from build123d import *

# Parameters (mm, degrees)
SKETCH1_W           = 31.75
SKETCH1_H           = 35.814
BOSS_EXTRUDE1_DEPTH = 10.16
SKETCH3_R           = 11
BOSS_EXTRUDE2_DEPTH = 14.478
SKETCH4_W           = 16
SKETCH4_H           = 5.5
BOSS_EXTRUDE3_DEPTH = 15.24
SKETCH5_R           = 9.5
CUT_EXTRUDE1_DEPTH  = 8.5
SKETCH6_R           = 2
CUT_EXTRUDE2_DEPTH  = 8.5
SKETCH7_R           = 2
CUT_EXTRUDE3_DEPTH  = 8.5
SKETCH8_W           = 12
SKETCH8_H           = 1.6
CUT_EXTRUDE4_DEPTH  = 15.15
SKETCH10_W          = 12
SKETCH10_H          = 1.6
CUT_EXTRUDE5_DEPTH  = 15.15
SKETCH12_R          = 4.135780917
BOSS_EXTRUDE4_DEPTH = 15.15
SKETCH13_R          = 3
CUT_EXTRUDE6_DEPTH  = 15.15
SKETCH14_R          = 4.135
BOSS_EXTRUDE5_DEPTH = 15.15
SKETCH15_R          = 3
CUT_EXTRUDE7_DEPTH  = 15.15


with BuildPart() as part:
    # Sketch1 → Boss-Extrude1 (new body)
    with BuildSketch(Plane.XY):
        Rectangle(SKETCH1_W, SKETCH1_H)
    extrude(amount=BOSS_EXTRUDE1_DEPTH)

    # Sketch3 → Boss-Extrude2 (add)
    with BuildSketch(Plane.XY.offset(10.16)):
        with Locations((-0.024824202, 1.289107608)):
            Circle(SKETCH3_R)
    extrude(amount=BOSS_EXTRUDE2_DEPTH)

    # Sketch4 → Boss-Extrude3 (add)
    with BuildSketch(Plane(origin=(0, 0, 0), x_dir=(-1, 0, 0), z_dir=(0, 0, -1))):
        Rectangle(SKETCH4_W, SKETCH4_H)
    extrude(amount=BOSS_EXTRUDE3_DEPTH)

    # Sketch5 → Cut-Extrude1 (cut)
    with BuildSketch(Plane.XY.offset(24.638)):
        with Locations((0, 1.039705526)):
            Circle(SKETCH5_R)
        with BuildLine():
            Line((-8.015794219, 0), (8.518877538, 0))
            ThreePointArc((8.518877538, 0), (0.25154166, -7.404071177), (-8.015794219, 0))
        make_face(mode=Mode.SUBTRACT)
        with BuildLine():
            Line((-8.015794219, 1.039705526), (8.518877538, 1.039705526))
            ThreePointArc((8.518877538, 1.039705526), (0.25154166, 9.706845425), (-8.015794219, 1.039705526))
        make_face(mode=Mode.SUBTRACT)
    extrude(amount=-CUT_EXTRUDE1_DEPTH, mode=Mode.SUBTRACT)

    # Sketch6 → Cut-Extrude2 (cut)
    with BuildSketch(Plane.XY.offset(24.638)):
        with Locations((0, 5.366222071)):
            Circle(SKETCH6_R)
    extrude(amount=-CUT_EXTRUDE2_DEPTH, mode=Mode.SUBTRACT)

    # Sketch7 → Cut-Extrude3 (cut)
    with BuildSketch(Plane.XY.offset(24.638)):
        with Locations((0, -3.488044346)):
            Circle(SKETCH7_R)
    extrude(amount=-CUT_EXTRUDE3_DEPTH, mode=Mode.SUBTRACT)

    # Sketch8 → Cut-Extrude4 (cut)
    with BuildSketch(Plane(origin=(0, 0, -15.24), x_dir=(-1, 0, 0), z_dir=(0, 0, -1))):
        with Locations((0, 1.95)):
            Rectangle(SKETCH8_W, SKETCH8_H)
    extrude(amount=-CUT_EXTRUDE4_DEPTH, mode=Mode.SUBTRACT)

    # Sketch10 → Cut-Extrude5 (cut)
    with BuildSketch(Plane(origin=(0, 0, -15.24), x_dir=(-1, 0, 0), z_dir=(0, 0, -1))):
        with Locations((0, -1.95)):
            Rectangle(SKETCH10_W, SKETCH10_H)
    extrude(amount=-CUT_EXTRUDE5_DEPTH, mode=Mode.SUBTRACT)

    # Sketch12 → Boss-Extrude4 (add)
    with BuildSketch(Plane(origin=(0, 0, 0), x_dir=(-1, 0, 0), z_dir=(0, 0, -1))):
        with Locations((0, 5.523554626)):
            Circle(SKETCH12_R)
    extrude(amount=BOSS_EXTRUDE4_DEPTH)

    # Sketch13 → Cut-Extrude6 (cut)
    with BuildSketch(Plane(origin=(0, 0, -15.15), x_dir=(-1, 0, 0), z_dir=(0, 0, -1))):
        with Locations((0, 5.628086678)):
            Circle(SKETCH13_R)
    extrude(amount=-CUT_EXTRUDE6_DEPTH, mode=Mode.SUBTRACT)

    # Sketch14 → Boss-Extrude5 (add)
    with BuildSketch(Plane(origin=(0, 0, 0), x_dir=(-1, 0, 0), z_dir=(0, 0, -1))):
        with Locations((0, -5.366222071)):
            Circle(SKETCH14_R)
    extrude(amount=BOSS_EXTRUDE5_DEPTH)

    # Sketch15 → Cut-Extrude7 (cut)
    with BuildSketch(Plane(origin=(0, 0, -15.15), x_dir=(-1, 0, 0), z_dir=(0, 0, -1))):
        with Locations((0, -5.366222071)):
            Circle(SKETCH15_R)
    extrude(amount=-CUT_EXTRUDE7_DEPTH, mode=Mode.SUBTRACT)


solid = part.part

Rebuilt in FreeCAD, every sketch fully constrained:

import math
import FreeCAD as App
import Part
import Sketcher

doc = App.newDocument("Part")
body = doc.addObject("PartDesign::Body", "Body")

# Sketch on XY plane
sketch1 = doc.addObject("Sketcher::SketchObject", "Sketch")
body.addObject(sketch1)
sketch1.AttachmentSupport = (doc.XY_Plane, [""])
sketch1.MapMode = "FlatFace"
sketch1.addGeometry([
    Part.LineSegment(App.Vector(-16, 18, 0), App.Vector(-16, -18, 0)),
    Part.LineSegment(App.Vector(-16, -18, 0), App.Vector(16, -18, 0)),
    Part.LineSegment(App.Vector(16, -18, 0), App.Vector(16, 18, 0)),
    Part.LineSegment(App.Vector(16, 18, 0), App.Vector(-16, 18, 0)),
], False)
sketch1.addConstraint([
    Sketcher.Constraint("Coincident", 0, 2, 1, 1),
    Sketcher.Constraint("Coincident", 1, 2, 2, 1),
    Sketcher.Constraint("Coincident", 2, 2, 3, 1),
    Sketcher.Constraint("Coincident", 3, 2, 0, 1),
    Sketcher.Constraint("Vertical", 0),
    Sketcher.Constraint("Horizontal", 1),
    Sketcher.Constraint("Vertical", 2),
    Sketcher.Constraint("Horizontal", 3),
    Sketcher.Constraint("Symmetric", 0, 2, 2, 2, -1, 1),
    Sketcher.Constraint("DistanceX", 1, 1, 1, 2, 31.75),
    Sketcher.Constraint("DistanceY", 0, 2, 0, 1, 35.814),
])
pad1 = doc.addObject("PartDesign::Pad", "Pad")
body.addObject(pad1)
pad1.Profile = sketch1
pad1.Length = 10.16

# Sketch on XY plane
sketch2 = doc.addObject("Sketcher::SketchObject", "Sketch001")
body.addObject(sketch2)
sketch2.AttachmentSupport = (doc.XY_Plane, [""])
sketch2.MapMode = "FlatFace"
sketch2.AttachmentOffset = App.Placement(App.Vector(0, 0, 10.16), App.Rotation())
sketch2.addGeometry(Part.Circle(App.Vector(0, 1, 0), App.Vector(0, 0, 1), 11), False)
sketch2.addConstraint([
    Sketcher.Constraint("Diameter", 0, 22.0),
    Sketcher.Constraint("DistanceX", 0, 3, -1, 1, 0.024824),
    Sketcher.Constraint("DistanceY", -1, 1, 0, 3, 1.289108),
])
pad2 = doc.addObject("PartDesign::Pad", "Pad001")
body.addObject(pad2)
pad2.Profile = sketch2
pad2.Length = 14.478

# Sketch on XY plane
sketch3 = doc.addObject("Sketcher::SketchObject", "Sketch002")
body.addObject(sketch3)
sketch3.AttachmentSupport = (doc.XY_Plane, [""])
sketch3.MapMode = "FlatFace"
sketch3.addGeometry([
    Part.LineSegment(App.Vector(8, 3, 0), App.Vector(8, -3, 0)),
    Part.LineSegment(App.Vector(8, -3, 0), App.Vector(-8, -3, 0)),
    Part.LineSegment(App.Vector(-8, -3, 0), App.Vector(-8, 3, 0)),
    Part.LineSegment(App.Vector(-8, 3, 0), App.Vector(8, 3, 0)),
], False)
sketch3.addConstraint([
    Sketcher.Constraint("Coincident", 0, 2, 1, 1),
    Sketcher.Constraint("Coincident", 1, 2, 2, 1),
    Sketcher.Constraint("Coincident", 2, 2, 3, 1),
    Sketcher.Constraint("Coincident", 3, 2, 0, 1),
    Sketcher.Constraint("Vertical", 0),
    Sketcher.Constraint("Horizontal", 1),
    Sketcher.Constraint("Vertical", 2),
    Sketcher.Constraint("Horizontal", 3),
    Sketcher.Constraint("Symmetric", 0, 2, 2, 2, -1, 1),
    Sketcher.Constraint("DistanceX", 1, 2, 1, 1, 16.0),
    Sketcher.Constraint("DistanceY", 0, 2, 0, 1, 5.5),
])
pad3 = doc.addObject("PartDesign::Pad", "Pad002")
body.addObject(pad3)
pad3.Profile = sketch3
pad3.Length = 15.24
pad3.Reversed = True

# Sketch on XY plane
sketch4 = doc.addObject("Sketcher::SketchObject", "Sketch003")
body.addObject(sketch4)
sketch4.AttachmentSupport = (doc.XY_Plane, [""])
sketch4.MapMode = "FlatFace"
sketch4.AttachmentOffset = App.Placement(App.Vector(0, 0, 24.638), App.Rotation())
sketch4.addGeometry([
    Part.Circle(App.Vector(0, 1, 0), App.Vector(0, 0, 1), 10),  # 0
    Part.ArcOfCircle(Part.Circle(App.Vector(0, 1, 0), App.Vector(0, 0, 1), 8), math.radians(-174), math.radians(-6)),  # 1
    Part.LineSegment(App.Vector(-8, 0, 0), App.Vector(9, 0, 0)),  # 2
    Part.LineSegment(App.Vector(9, 1, 0), App.Vector(-8, 1, 0)),  # 3
    Part.ArcOfCircle(Part.Circle(App.Vector(0, 1, 0), App.Vector(0, 0, 1), 8), math.radians(-3), math.radians(183)),  # 4
], False)
sketch4.addConstraint([
    Sketcher.Constraint("Coincident", 1, 1, 2, 1),
    Sketcher.Constraint("Coincident", 2, 2, 1, 2),
    Sketcher.Constraint("Coincident", 3, 1, 4, 1),
    Sketcher.Constraint("Coincident", 4, 2, 3, 2),
    Sketcher.Constraint("Horizontal", 2),
    Sketcher.Constraint("Horizontal", 3),
    Sketcher.Constraint("PointOnObject", 0, 3, -2),
    Sketcher.Constraint("PointOnObject", 1, 1, -1),
    Sketcher.Constraint("Horizontal", 0, 3, 3, 1),
    Sketcher.Constraint("Vertical", 1, 3, 4, 3),
    Sketcher.Constraint("Vertical", 2, 2, 3, 1),
    Sketcher.Constraint("Diameter", 0, 19.0),
    Sketcher.Constraint("Radius", 1, 8.317661),
    Sketcher.Constraint("Radius", 4, 8.276557),
    Sketcher.Constraint("DistanceX", 2, 1, 2, 2, 16.534672),
    Sketcher.Constraint("DistanceY", 1, 3, 4, 3, 0.516698),
    Sketcher.Constraint("DistanceX", -1, 1, 1, 3, 0.251542),
])
pocket1 = doc.addObject("PartDesign::Pocket", "Pocket")
body.addObject(pocket1)
pocket1.Profile = sketch4
pocket1.Length = 8.5

# Sketch on XY plane
sketch5 = doc.addObject("Sketcher::SketchObject", "Sketch004")
body.addObject(sketch5)
sketch5.AttachmentSupport = (doc.XY_Plane, [""])
sketch5.MapMode = "FlatFace"
sketch5.AttachmentOffset = App.Placement(App.Vector(0, 0, 24.638), App.Rotation())
sketch5.addGeometry(Part.Circle(App.Vector(0, 5.4, 0), App.Vector(0, 0, 1), 2), False)
sketch5.addConstraint([
    Sketcher.Constraint("PointOnObject", 0, 3, -2),
    Sketcher.Constraint("Diameter", 0, 4.0),
    Sketcher.Constraint("DistanceY", -1, 1, 0, 3, 5.366222),
])
pocket2 = doc.addObject("PartDesign::Pocket", "Pocket001")
body.addObject(pocket2)
pocket2.Profile = sketch5
pocket2.Length = 8.5

# Sketch on XY plane
sketch6 = doc.addObject("Sketcher::SketchObject", "Sketch005")
body.addObject(sketch6)
sketch6.AttachmentSupport = (doc.XY_Plane, [""])
sketch6.MapMode = "FlatFace"
sketch6.AttachmentOffset = App.Placement(App.Vector(0, 0, 24.638), App.Rotation())
sketch6.addGeometry(Part.Circle(App.Vector(0, -3.5, 0), App.Vector(0, 0, 1), 2), False)
sketch6.addConstraint([
    Sketcher.Constraint("PointOnObject", 0, 3, -2),
    Sketcher.Constraint("Diameter", 0, 4.0),
    Sketcher.Constraint("DistanceY", 0, 3, -1, 1, 3.488044),
])
pocket3 = doc.addObject("PartDesign::Pocket", "Pocket002")
body.addObject(pocket3)
pocket3.Profile = sketch6
pocket3.Length = 8.5

# Sketch on XY plane
sketch7 = doc.addObject("Sketcher::SketchObject", "Sketch006")
body.addObject(sketch7)
sketch7.AttachmentSupport = (doc.XY_Plane, [""])
sketch7.MapMode = "FlatFace"
sketch7.AttachmentOffset = App.Placement(App.Vector(0, 0, -15.24), App.Rotation())
sketch7.addGeometry([
    Part.LineSegment(App.Vector(6, 2.8, 0), App.Vector(6, 1.1, 0)),
    Part.LineSegment(App.Vector(6, 1.1, 0), App.Vector(-6, 1.1, 0)),
    Part.LineSegment(App.Vector(-6, 1.1, 0), App.Vector(-6, 2.8, 0)),
    Part.LineSegment(App.Vector(-6, 2.8, 0), App.Vector(6, 2.8, 0)),
], False)
sketch7.addConstraint([
    Sketcher.Constraint("Coincident", 0, 2, 1, 1),
    Sketcher.Constraint("Coincident", 1, 2, 2, 1),
    Sketcher.Constraint("Coincident", 2, 2, 3, 1),
    Sketcher.Constraint("Coincident", 3, 2, 0, 1),
    Sketcher.Constraint("Vertical", 0),
    Sketcher.Constraint("Horizontal", 1),
    Sketcher.Constraint("Vertical", 2),
    Sketcher.Constraint("Horizontal", 3),
    Sketcher.Constraint("DistanceX", 1, 2, 1, 1, 12.0),
    Sketcher.Constraint("DistanceY", 0, 2, 0, 1, 1.6),
    Sketcher.Constraint("DistanceX", -1, 1, 0, 2, 6.0),
    Sketcher.Constraint("DistanceY", -1, 1, 0, 2, 1.15),
])
pocket4 = doc.addObject("PartDesign::Pocket", "Pocket003")
body.addObject(pocket4)
pocket4.Profile = sketch7
pocket4.Length = 15.15
pocket4.Reversed = True

# Sketch on XY plane
sketch8 = doc.addObject("Sketcher::SketchObject", "Sketch007")
body.addObject(sketch8)
sketch8.AttachmentSupport = (doc.XY_Plane, [""])
sketch8.MapMode = "FlatFace"
sketch8.AttachmentOffset = App.Placement(App.Vector(0, 0, -15.24), App.Rotation())
sketch8.addGeometry([
    Part.LineSegment(App.Vector(6, -1.1, 0), App.Vector(6, -2.8, 0)),
    Part.LineSegment(App.Vector(6, -2.8, 0), App.Vector(-6, -2.8, 0)),
    Part.LineSegment(App.Vector(-6, -2.8, 0), App.Vector(-6, -1.1, 0)),
    Part.LineSegment(App.Vector(-6, -1.1, 0), App.Vector(6, -1.1, 0)),
], False)
sketch8.addConstraint([
    Sketcher.Constraint("Coincident", 0, 2, 1, 1),
    Sketcher.Constraint("Coincident", 1, 2, 2, 1),
    Sketcher.Constraint("Coincident", 2, 2, 3, 1),
    Sketcher.Constraint("Coincident", 3, 2, 0, 1),
    Sketcher.Constraint("Vertical", 0),
    Sketcher.Constraint("Horizontal", 1),
    Sketcher.Constraint("Vertical", 2),
    Sketcher.Constraint("Horizontal", 3),
    Sketcher.Constraint("DistanceX", 1, 2, 1, 1, 12.0),
    Sketcher.Constraint("DistanceY", 0, 2, 0, 1, 1.6),
    Sketcher.Constraint("DistanceX", -1, 1, 0, 2, 6.0),
    Sketcher.Constraint("DistanceY", 0, 2, -1, 1, 2.75),
])
pocket5 = doc.addObject("PartDesign::Pocket", "Pocket004")
body.addObject(pocket5)
pocket5.Profile = sketch8
pocket5.Length = 15.15
pocket5.Reversed = True

# Sketch on XY plane
sketch9 = doc.addObject("Sketcher::SketchObject", "Sketch008")
body.addObject(sketch9)
sketch9.AttachmentSupport = (doc.XY_Plane, [""])
sketch9.MapMode = "FlatFace"
sketch9.addGeometry(Part.Circle(App.Vector(0, 5.5, 0), App.Vector(0, 0, 1), 4.1), False)
sketch9.addConstraint([
    Sketcher.Constraint("PointOnObject", 0, 3, -2),
    Sketcher.Constraint("Diameter", 0, 8.271562),
    Sketcher.Constraint("DistanceY", -1, 1, 0, 3, 5.523555),
])
pad4 = doc.addObject("PartDesign::Pad", "Pad003")
body.addObject(pad4)
pad4.Profile = sketch9
pad4.Length = 15.15
pad4.Reversed = True

# Sketch on XY plane
sketch10 = doc.addObject("Sketcher::SketchObject", "Sketch009")
body.addObject(sketch10)
sketch10.AttachmentSupport = (doc.XY_Plane, [""])
sketch10.MapMode = "FlatFace"
sketch10.AttachmentOffset = App.Placement(App.Vector(0, 0, -15.15), App.Rotation())
sketch10.addGeometry(Part.Circle(App.Vector(0, 5.6, 0), App.Vector(0, 0, 1), 3), False)
sketch10.addConstraint([
    Sketcher.Constraint("PointOnObject", 0, 3, -2),
    Sketcher.Constraint("Diameter", 0, 6.0),
    Sketcher.Constraint("DistanceY", -1, 1, 0, 3, 5.628087),
])
pocket6 = doc.addObject("PartDesign::Pocket", "Pocket005")
body.addObject(pocket6)
pocket6.Profile = sketch10
pocket6.Length = 15.15
pocket6.Reversed = True

# Sketch on XY plane
sketch11 = doc.addObject("Sketcher::SketchObject", "Sketch010")
body.addObject(sketch11)
sketch11.AttachmentSupport = (doc.XY_Plane, [""])
sketch11.MapMode = "FlatFace"
sketch11.addGeometry(Part.Circle(App.Vector(0, -5.4, 0), App.Vector(0, 0, 1), 4.1), False)
sketch11.addConstraint([
    Sketcher.Constraint("PointOnObject", 0, 3, -2),
    Sketcher.Constraint("Diameter", 0, 8.27),
    Sketcher.Constraint("DistanceY", 0, 3, -1, 1, 5.366222),
])
pad5 = doc.addObject("PartDesign::Pad", "Pad004")
body.addObject(pad5)
pad5.Profile = sketch11
pad5.Length = 15.15
pad5.Reversed = True

# Sketch on XY plane
sketch12 = doc.addObject("Sketcher::SketchObject", "Sketch011")
body.addObject(sketch12)
sketch12.AttachmentSupport = (doc.XY_Plane, [""])
sketch12.MapMode = "FlatFace"
sketch12.AttachmentOffset = App.Placement(App.Vector(0, 0, -15.15), App.Rotation())
sketch12.addGeometry(Part.Circle(App.Vector(0, -5.4, 0), App.Vector(0, 0, 1), 3), False)
sketch12.addConstraint([
    Sketcher.Constraint("PointOnObject", 0, 3, -2),
    Sketcher.Constraint("Diameter", 0, 6.0),
    Sketcher.Constraint("DistanceY", 0, 3, -1, 1, 5.366222),
])
pocket7 = doc.addObject("PartDesign::Pocket", "Pocket006")
body.addObject(pocket7)
pocket7.Profile = sketch12
pocket7.Length = 15.15
pocket7.Reversed = True

doc.recompute()
